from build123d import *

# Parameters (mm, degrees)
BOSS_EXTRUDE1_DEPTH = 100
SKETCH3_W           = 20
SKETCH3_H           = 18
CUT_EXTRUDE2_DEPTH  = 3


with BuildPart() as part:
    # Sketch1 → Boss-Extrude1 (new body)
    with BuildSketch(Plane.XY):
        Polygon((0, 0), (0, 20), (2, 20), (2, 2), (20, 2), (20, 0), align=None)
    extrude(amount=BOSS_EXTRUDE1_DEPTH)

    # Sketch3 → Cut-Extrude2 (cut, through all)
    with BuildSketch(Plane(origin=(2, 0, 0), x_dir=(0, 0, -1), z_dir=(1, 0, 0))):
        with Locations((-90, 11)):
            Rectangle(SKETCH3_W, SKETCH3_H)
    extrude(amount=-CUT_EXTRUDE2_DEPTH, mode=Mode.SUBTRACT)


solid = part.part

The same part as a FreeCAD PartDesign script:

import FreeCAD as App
import Part
import Sketcher


def add_polygon(sketch, points):
    """Adds a closed chain of lines whose ends are joined by coincident constraints."""
    first, n = sketch.GeometryCount, len(points)
    for a, b in zip(points, points[1:] + points[:1]):
        sketch.addGeometry(Part.LineSegment(App.Vector(*a, 0), App.Vector(*b, 0)), False)
    for i in range(n):
        sketch.addConstraint(Sketcher.Constraint("Coincident", first + i, 2, first + (i + 1) % n, 1))

doc = App.newDocument("Part")
body = doc.addObject("PartDesign::Body", "Body")

sketch1 = doc.addObject("Sketcher::SketchObject", "Sketch")
body.addObject(sketch1)
sketch1.AttachmentSupport = (doc.XY_Plane, [""])
sketch1.MapMode = "FlatFace"
add_polygon(sketch1, [(0, 20), (0, 0), (20, 0), (20, 2), (2, 2), (2, 20)])
sketch1.addConstraint(Sketcher.Constraint("Vertical", 0))
sketch1.addConstraint(Sketcher.Constraint("Horizontal", 1))
sketch1.addConstraint(Sketcher.Constraint("Vertical", 2))
sketch1.addConstraint(Sketcher.Constraint("Horizontal", 3))
sketch1.addConstraint(Sketcher.Constraint("Vertical", 4))
sketch1.addConstraint(Sketcher.Constraint("Horizontal", 5))
sketch1.addConstraint(Sketcher.Constraint("Coincident", 0, 2, -1, 1))
sketch1.addConstraint(Sketcher.Constraint("Equal", 1, 0))
sketch1.addConstraint(Sketcher.Constraint("Equal", 5, 2))
sketch1.addConstraint(Sketcher.Constraint("DistanceX", 1, 1, 1, 2, 20.0))
sketch1.addConstraint(Sketcher.Constraint("DistanceX", 3, 2, 3, 1, 18.0))
pad1 = doc.addObject("PartDesign::Pad", "Pad")
body.addObject(pad1)
pad1.Profile = sketch1
pad1.Length = 100

sketch2 = doc.addObject("Sketcher::SketchObject", "Sketch001")
body.addObject(sketch2)
sketch2.AttachmentSupport = (doc.YZ_Plane, [""])
sketch2.MapMode = "FlatFace"
sketch2.AttachmentOffset = App.Placement(App.Vector(0, 0, 2), App.Rotation())
add_polygon(sketch2, [(20, 100), (2, 100), (2, 80), (20, 80)])
sketch2.addConstraint(Sketcher.Constraint("Horizontal", 0))
sketch2.addConstraint(Sketcher.Constraint("Vertical", 1))
sketch2.addConstraint(Sketcher.Constraint("Horizontal", 2))
sketch2.addConstraint(Sketcher.Constraint("Vertical", 3))
sketch2.addConstraint(Sketcher.Constraint("DistanceX", 0, 2, 0, 1, 18.0))
sketch2.addConstraint(Sketcher.Constraint("DistanceY", 1, 2, 1, 1, 20.0))
sketch2.addConstraint(Sketcher.Constraint("DistanceX", -1, 1, 0, 2, 2.0))
sketch2.addConstraint(Sketcher.Constraint("DistanceY", -1, 1, 0, 2, 100.0))
pocket1 = doc.addObject("PartDesign::Pocket", "Pocket")
body.addObject(pocket1)
pocket1.Profile = sketch2
pocket1.Type = "ThroughAll"

doc.recompute()
